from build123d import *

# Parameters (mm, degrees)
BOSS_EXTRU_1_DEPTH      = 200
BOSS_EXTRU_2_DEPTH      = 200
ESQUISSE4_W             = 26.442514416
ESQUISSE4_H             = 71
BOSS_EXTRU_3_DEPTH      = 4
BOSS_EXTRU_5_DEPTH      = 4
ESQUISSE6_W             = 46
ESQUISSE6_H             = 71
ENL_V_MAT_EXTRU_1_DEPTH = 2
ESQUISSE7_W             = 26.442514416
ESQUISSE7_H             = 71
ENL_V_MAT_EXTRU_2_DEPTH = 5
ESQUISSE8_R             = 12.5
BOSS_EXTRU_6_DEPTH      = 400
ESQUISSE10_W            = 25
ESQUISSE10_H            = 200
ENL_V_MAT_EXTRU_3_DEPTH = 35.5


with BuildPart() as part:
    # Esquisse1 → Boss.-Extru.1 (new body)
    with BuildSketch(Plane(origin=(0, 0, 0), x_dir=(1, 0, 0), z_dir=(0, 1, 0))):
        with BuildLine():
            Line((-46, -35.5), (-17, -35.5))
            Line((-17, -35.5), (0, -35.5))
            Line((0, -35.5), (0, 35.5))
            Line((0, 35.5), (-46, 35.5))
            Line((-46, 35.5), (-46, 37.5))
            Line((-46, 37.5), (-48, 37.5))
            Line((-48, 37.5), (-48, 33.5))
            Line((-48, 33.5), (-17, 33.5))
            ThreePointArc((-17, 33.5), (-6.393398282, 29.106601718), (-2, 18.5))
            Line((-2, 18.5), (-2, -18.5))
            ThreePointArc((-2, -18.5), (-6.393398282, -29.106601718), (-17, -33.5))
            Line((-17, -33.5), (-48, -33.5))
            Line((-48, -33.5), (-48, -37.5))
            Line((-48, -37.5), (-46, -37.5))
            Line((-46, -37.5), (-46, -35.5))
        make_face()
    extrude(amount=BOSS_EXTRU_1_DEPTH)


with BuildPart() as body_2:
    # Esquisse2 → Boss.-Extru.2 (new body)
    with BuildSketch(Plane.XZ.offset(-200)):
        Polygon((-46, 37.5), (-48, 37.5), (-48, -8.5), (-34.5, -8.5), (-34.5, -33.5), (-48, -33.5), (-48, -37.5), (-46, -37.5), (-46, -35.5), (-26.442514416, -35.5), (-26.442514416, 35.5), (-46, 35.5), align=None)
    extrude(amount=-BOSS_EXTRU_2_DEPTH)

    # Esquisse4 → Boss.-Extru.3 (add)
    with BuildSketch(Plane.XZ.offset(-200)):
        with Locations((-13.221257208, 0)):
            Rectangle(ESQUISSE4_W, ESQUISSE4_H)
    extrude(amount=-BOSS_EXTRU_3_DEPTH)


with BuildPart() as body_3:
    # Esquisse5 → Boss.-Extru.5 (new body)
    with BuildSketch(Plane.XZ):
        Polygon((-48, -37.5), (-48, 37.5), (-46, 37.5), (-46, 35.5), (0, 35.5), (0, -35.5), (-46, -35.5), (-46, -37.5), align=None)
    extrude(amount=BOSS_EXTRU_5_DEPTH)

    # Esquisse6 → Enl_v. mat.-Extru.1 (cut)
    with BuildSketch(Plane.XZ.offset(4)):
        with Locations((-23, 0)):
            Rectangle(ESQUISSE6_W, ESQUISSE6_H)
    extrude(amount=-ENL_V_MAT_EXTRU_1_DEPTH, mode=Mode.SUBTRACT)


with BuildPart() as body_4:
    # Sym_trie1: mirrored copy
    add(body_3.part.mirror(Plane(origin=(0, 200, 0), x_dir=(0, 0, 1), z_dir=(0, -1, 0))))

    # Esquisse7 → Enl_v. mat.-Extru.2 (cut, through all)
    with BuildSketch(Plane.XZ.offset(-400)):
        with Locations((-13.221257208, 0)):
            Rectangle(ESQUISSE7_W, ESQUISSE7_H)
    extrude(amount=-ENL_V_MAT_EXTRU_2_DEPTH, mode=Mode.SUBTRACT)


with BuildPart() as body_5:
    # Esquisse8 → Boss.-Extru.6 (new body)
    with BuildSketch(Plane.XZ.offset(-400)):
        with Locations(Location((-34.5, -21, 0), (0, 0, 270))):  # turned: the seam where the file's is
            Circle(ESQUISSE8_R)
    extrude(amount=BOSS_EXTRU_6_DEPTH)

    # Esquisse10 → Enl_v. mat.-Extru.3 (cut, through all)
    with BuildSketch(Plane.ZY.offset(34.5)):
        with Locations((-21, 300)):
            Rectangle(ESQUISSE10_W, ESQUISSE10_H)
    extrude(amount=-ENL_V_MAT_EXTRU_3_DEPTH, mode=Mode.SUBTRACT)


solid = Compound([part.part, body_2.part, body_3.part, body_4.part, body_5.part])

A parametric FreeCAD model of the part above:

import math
import FreeCAD as App
import Part
import Sketcher


def add_polygon(sketch, points):
    """Adds a closed chain of lines whose ends are joined by coincident constraints."""
    first, n = sketch.GeometryCount, len(points)
    for a, b in zip(points, points[1:] + points[:1]):
        sketch.addGeometry(Part.LineSegment(App.Vector(*a, 0), App.Vector(*b, 0)), False)
    for i in range(n):
        sketch.addConstraint(Sketcher.Constraint("Coincident", first + i, 2, first + (i + 1) % n, 1))

doc = App.newDocument("Part")
body = doc.addObject("PartDesign::Body", "Body")

# Sketch on XZ plane
sketch1 = body.newObject("Sketcher::SketchObject", "Sketch")
sketch1.AttachmentSupport = (doc.getObject("XZ_Plane"), [""])
sketch1.MapMode = "FlatFace"
sketch1.addGeometry(Part.LineSegment(App.Vector(-46, 35.5, 0), App.Vector(0, 35.5, 0)), False)
sketch1.addGeometry(Part.LineSegment(App.Vector(0, 35.5, 0), App.Vector(0, -35.5, 0)), False)
sketch1.addGeometry(Part.LineSegment(App.Vector(0, -35.5, 0), App.Vector(-46, -35.5, 0)), False)
sketch1.addGeometry(Part.LineSegment(App.Vector(-46, -35.5, 0), App.Vector(-46, -37.5, 0)), False)
sketch1.addGeometry(Part.LineSegment(App.Vector(-46, -37.5, 0), App.Vector(-48, -37.5, 0)), False)
sketch1.addGeometry(Part.LineSegment(App.Vector(-48, -37.5, 0), App.Vector(-48, -33.5, 0)), False)
sketch1.addGeometry(Part.LineSegment(App.Vector(-48, -33.5, 0), App.Vector(-17, -33.5, 0)), False)
sketch1.addGeometry(Part.ArcOfCircle(Part.Circle(App.Vector(-17, -18.5, 0), App.Vector(0, 0, 1), 15), math.radians(-90), math.radians(0)), False)
sketch1.addGeometry(Part.LineSegment(App.Vector(-2, -18.5, 0), App.Vector(-2, 18.5, 0)), False)
sketch1.addGeometry(Part.ArcOfCircle(Part.Circle(App.Vector(-17, 18.5, 0), App.Vector(0, 0, 1), 15), math.radians(0), math.radians(90)), False)
sketch1.addGeometry(Part.LineSegment(App.Vector(-17, 33.5, 0), App.Vector(-48, 33.5, 0)), False)
sketch1.addGeometry(Part.LineSegment(App.Vector(-48, 33.5, 0), App.Vector(-48, 37.5, 0)), False)
sketch1.addGeometry(Part.LineSegment(App.Vector(-48, 37.5, 0), App.Vector(-46, 37.5, 0)), False)
sketch1.addGeometry(Part.LineSegment(App.Vector(-46, 37.5, 0), App.Vector(-46, 35.5, 0)), False)
sketch1.addConstraint(Sketcher.Constraint("Coincident", 0, 2, 1, 1))
sketch1.addConstraint(Sketcher.Constraint("Coincident", 1, 2, 2, 1))
sketch1.addConstraint(Sketcher.Constraint("Coincident", 2, 2, 3, 1))
sketch1.addConstraint(Sketcher.Constraint("Coincident", 3, 2, 4, 1))
sketch1.addConstraint(Sketcher.Constraint("Coincident", 4, 2, 5, 1))
sketch1.addConstraint(Sketcher.Constraint("Coincident", 5, 2, 6, 1))
sketch1.addConstraint(Sketcher.Constraint("Tangent", 6, 2, 7, 1))
sketch1.addConstraint(Sketcher.Constraint("Tangent", 7, 2, 8, 1))
sketch1.addConstraint(Sketcher.Constraint("Tangent", 8, 2, 9, 1))
sketch1.addConstraint(Sketcher.Constraint("Tangent", 9, 2, 10, 1))
sketch1.addConstraint(Sketcher.Constraint("Coincident", 10, 2, 11, 1))
sketch1.addConstraint(Sketcher.Constraint("Coincident", 11, 2, 12, 1))
sketch1.addConstraint(Sketcher.Constraint("Coincident", 12, 2, 13, 1))
sketch1.addConstraint(Sketcher.Constraint("Coincident", 13, 2, 0, 1))
sketch1.addConstraint(Sketcher.Constraint("Horizontal", 0))
sketch1.addConstraint(Sketcher.Constraint("Vertical", 1))
sketch1.addConstraint(Sketcher.Constraint("Horizontal", 2))
sketch1.addConstraint(Sketcher.Constraint("Vertical", 3))
sketch1.addConstraint(Sketcher.Constraint("Horizontal", 4))
sketch1.addConstraint(Sketcher.Constraint("Vertical", 5))
sketch1.addConstraint(Sketcher.Constraint("Horizontal", 6))
sketch1.addConstraint(Sketcher.Constraint("Vertical", 8))
sketch1.addConstraint(Sketcher.Constraint("Horizontal", 10))
sketch1.addConstraint(Sketcher.Constraint("Vertical", 11))
sketch1.addConstraint(Sketcher.Constraint("Horizontal", 12))
sketch1.addConstraint(Sketcher.Constraint("Vertical", 13))
sketch1.addConstraint(Sketcher.Constraint("Equal", 7, 9))
sketch1.addConstraint(Sketcher.Constraint("Symmetric", 0, 2, 1, 2, -1, 1))
sketch1.addConstraint(Sketcher.Constraint("Symmetric", 5, 2, 10, 2, -1))
sketch1.addConstraint(Sketcher.Constraint("Symmetric", 3, 2, 12, 2, -1))
sketch1.addConstraint(Sketcher.Constraint("Equal", 12, 3))
sketch1.addConstraint(Sketcher.Constraint("Radius", 7, 15.0))
sketch1.addConstraint(Sketcher.Constraint("DistanceX", 0, 1, 0, 2, 46.0))
sketch1.addConstraint(Sketcher.Constraint("DistanceX", 4, 2, 4, 1, 2.0))
sketch1.addConstraint(Sketcher.Constraint("DistanceX", 6, 1, 6, 2, 31.0))
sketch1.addConstraint(Sketcher.Constraint("DistanceY", 1, 2, 1, 1, 71.0))
sketch1.addConstraint(Sketcher.Constraint("DistanceY", 5, 1, 5, 2, 4.0))
pad1 = body.newObject("PartDesign::Pad", "Pad")
pad1.Profile = sketch1
pad1.Length = 200
pad1.Reversed = True
body2 = doc.addObject("PartDesign::Body", "Body001")

# Sketch on XZ plane
sketch2 = body2.newObject("Sketcher::SketchObject", "Sketch001")
sketch2.AttachmentSupport = (doc.getObject("XZ_Plane001"), [""])
sketch2.MapMode = "FlatFace"
sketch2.AttachmentOffset = App.Placement(App.Vector(0, 0, -200), App.Rotation())
add_polygon(sketch2, [(-46, 37.5), (-48, 37.5), (-48, -8.5), (-34.5, -8.5), (-34.5, -33.5), (-48, -33.5), (-48, -37.5), (-46, -37.5), (-46, -35.5), (-26.4, -35.5), (-26.4, 35.5), (-46, 35.5)])  # lines 0-11
sketch2.addConstraint(Sketcher.Constraint("Horizontal", 0))
sketch2.addConstraint(Sketcher.Constraint("Vertical", 1))
sketch2.addConstraint(Sketcher.Constraint("Horizontal", 2))
sketch2.addConstraint(Sketcher.Constraint("Vertical", 3))
sketch2.addConstraint(Sketcher.Constraint("Horizontal", 4))
sketch2.addConstraint(Sketcher.Constraint("Vertical", 5))
sketch2.addConstraint(Sketcher.Constraint("Horizontal", 6))
sketch2.addConstraint(Sketcher.Constraint("Vertical", 7))
sketch2.addConstraint(Sketcher.Constraint("Horizontal", 8))
sketch2.addConstraint(Sketcher.Constraint("Vertical", 9))
sketch2.addConstraint(Sketcher.Constraint("Horizontal", 10))
sketch2.addConstraint(Sketcher.Constraint("Vertical", 11))
sketch2.addConstraint(Sketcher.Constraint("Symmetric", 0, 2, 5, 2, -1))
sketch2.addConstraint(Sketcher.Constraint("Symmetric", 7, 2, 10, 2, -1))
sketch2.addConstraint(Sketcher.Constraint("Equal", 6, 7))
sketch2.addConstraint(Sketcher.Constraint("DistanceX", 0, 2, 0, 1, 2.0))
sketch2.addConstraint(Sketcher.Constraint("DistanceY", 1, 2, 1, 1, 46.0))
sketch2.addConstraint(Sketcher.Constraint("DistanceY", 3, 2, 3, 1, 25.0))
sketch2.addConstraint(Sketcher.Constraint("DistanceY", 5, 2, 5, 1, 4.0))
sketch2.addConstraint(Sketcher.Constraint("DistanceX", 2, 1, 2, 2, 13.5))
sketch2.addConstraint(Sketcher.Constraint("DistanceX", 0, 2, -1, 1, 48.0))
sketch2.addConstraint(Sketcher.Constraint("DistanceX", 8, 1, 8, 2, 19.557486))
pad2 = body2.newObject("PartDesign::Pad", "Pad001")
pad2.Profile = sketch2
pad2.Length = 200
pad2.Reversed = True

# Sketch on XZ plane
sketch3 = body2.newObject("Sketcher::SketchObject", "Sketch002")
sketch3.AttachmentSupport = (doc.getObject("XZ_Plane001"), [""])
sketch3.MapMode = "FlatFace"
sketch3.AttachmentOffset = App.Placement(App.Vector(0, 0, -200), App.Rotation())
add_polygon(sketch3, [(-26, 36), (-26, -36), (0, -36), (0, 36)])  # lines 0-3
sketch3.addConstraint(Sketcher.Constraint("Vertical", 0))
sketch3.addConstraint(Sketcher.Constraint("Horizontal", 1))
sketch3.addConstraint(Sketcher.Constraint("Vertical", 2))
sketch3.addConstraint(Sketcher.Constraint("Horizontal", 3))
sketch3.addConstraint(Sketcher.Constraint("Symmetric", 1, 2, 2, 2, -1, 1))
sketch3.addConstraint(Sketcher.Constraint("DistanceY", 0, 2, 0, 1, 71.0))
sketch3.addConstraint(Sketcher.Constraint("DistanceX", 1, 1, 1, 2, 26.442514))
pad3 = body2.newObject("PartDesign::Pad", "Pad002")
pad3.Profile = sketch3
pad3.Length = 4
pad3.Reversed = True
body3 = doc.addObject("PartDesign::Body", "Body002")

# Sketch on XZ plane
sketch4 = body3.newObject("Sketcher::SketchObject", "Sketch003")
sketch4.AttachmentSupport = (doc.getObject("XZ_Plane002"), [""])
sketch4.MapMode = "FlatFace"
add_polygon(sketch4, [(-48, 37.5), (-48, -37.5), (-46, -37.5), (-46, -35.5), (0, -35.5), (0, 35.5), (-46, 35.5), (-46, 37.5)])  # lines 0-7
sketch4.addConstraint(Sketcher.Constraint("Vertical", 0))
sketch4.addConstraint(Sketcher.Constraint("Horizontal", 1))
sketch4.addConstraint(Sketcher.Constraint("Vertical", 2))
sketch4.addConstraint(Sketcher.Constraint("Horizontal", 3))
sketch4.addConstraint(Sketcher.Constraint("Vertical", 4))
sketch4.addConstraint(Sketcher.Constraint("Horizontal", 5))
sketch4.addConstraint(Sketcher.Constraint("Vertical", 6))
sketch4.addConstraint(Sketcher.Constraint("Horizontal", 7))
sketch4.addConstraint(Sketcher.Constraint("Symmetric", 3, 2, 4, 2, -1, 1))
sketch4.addConstraint(Sketcher.Constraint("Symmetric", 1, 2, 6, 2, -1))
sketch4.addConstraint(Sketcher.Constraint("Equal", 7, 2))
sketch4.addConstraint(Sketcher.Constraint("DistanceX", 1, 1, 1, 2, 2.0))
sketch4.addConstraint(Sketcher.Constraint("DistanceX", 3, 1, 3, 2, 46.0))
sketch4.addConstraint(Sketcher.Constraint("DistanceY", 0, 2, 0, 1, 75.0))
pad4 = body3.newObject("PartDesign::Pad", "Pad003")
pad4.Profile = sketch4
pad4.Length = 4

# Sketch on XZ plane
sketch5 = body3.newObject("Sketcher::SketchObject", "Sketch004")
sketch5.AttachmentSupport = (doc.getObject("XZ_Plane002"), [""])
sketch5.MapMode = "FlatFace"
sketch5.AttachmentOffset = App.Placement(App.Vector(0, 0, 4), App.Rotation())
add_polygon(sketch5, [(-46, 36), (-46, -36), (0, -36), (0, 36)])  # lines 0-3
sketch5.addConstraint(Sketcher.Constraint("Vertical", 0))
sketch5.addConstraint(Sketcher.Constraint("Horizontal", 1))
sketch5.addConstraint(Sketcher.Constraint("Vertical", 2))
sketch5.addConstraint(Sketcher.Constraint("Horizontal", 3))
sketch5.addConstraint(Sketcher.Constraint("Symmetric", 1, 2, 2, 2, -1, 1))
sketch5.addConstraint(Sketcher.Constraint("DistanceX", 1, 1, 1, 2, 46.0))
sketch5.addConstraint(Sketcher.Constraint("DistanceY", 0, 2, 0, 1, 71.0))
pocket1 = body3.newObject("PartDesign::Pocket", "Pocket")
pocket1.Profile = sketch5
pocket1.Length = 2
body4 = doc.addObject("PartDesign::Body", "Body003")
doc.recompute()

mirroring = doc.addObject("Part::Mirroring", "Mirroring")
mirroring.Source = body3
mirroring.Base = App.Vector(0, 200, 0)
mirroring.Normal = App.Vector(0, -1, 0)
body4.BaseFeature = mirroring
doc.recompute()

# Sketch on XZ plane
sketch6 = body4.newObject("Sketcher::SketchObject", "Sketch005")
sketch6.AttachmentSupport = (doc.getObject("XZ_Plane003"), [""])
sketch6.MapMode = "FlatFace"
sketch6.AttachmentOffset = App.Placement(App.Vector(0, 0, -400), App.Rotation())
add_polygon(sketch6, [(-26, 36), (-26, -36), (0, -36), (0, 36)])  # lines 0-3
sketch6.addConstraint(Sketcher.Constraint("Vertical", 0))
sketch6.addConstraint(Sketcher.Constraint("Horizontal", 1))
sketch6.addConstraint(Sketcher.Constraint("Vertical", 2))
sketch6.addConstraint(Sketcher.Constraint("Horizontal", 3))
sketch6.addConstraint(Sketcher.Constraint("Symmetric", 1, 2, 2, 2, -1, 1))
sketch6.addConstraint(Sketcher.Constraint("DistanceY", 0, 2, 0, 1, 71.0))
sketch6.addConstraint(Sketcher.Constraint("DistanceX", 1, 1, 1, 2, 26.442514))
pocket2 = body4.newObject("PartDesign::Pocket", "Pocket001")
pocket2.Profile = sketch6
pocket2.Type = "ThroughAll"
body5 = doc.addObject("PartDesign::Body", "Body004")

# Sketch on XZ plane
sketch7 = body5.newObject("Sketcher::SketchObject", "Sketch006")
sketch7.AttachmentSupport = (doc.getObject("XZ_Plane004"), [""])
sketch7.MapMode = "FlatFace"
sketch7.AttachmentOffset = App.Placement(App.Vector(0, 0, -400), App.Rotation())
sketch7.addGeometry(Part.Circle(App.Vector(-34, -21, 0), App.Vector(0, 0, 1), 12), False)
sketch7.addConstraint(Sketcher.Constraint("Diameter", 0, 25.0))
sketch7.addConstraint(Sketcher.Constraint("DistanceY", 0, 3, -1, 1, 21.0))
sketch7.addConstraint(Sketcher.Constraint("DistanceX", 0, 3, -1, 1, 34.5))
pad5 = body5.newObject("PartDesign::Pad", "Pad004")
pad5.Profile = sketch7
pad5.Length = 400

# Sketch on YZ plane
sketch8 = body5.newObject("Sketcher::SketchObject", "Sketch007")
sketch8.AttachmentSupport = (doc.getObject("YZ_Plane004"), [""])
sketch8.MapMode = "FlatFace"
sketch8.AttachmentOffset = App.Placement(App.Vector(0, 0, -34.5), App.Rotation())
add_polygon(sketch8, [(400, -34), (200, -34), (200, -8), (400, -8)])  # lines 0-3
sketch8.addConstraint(Sketcher.Constraint("Horizontal", 0))
sketch8.addConstraint(Sketcher.Constraint("Vertical", 1))
sketch8.addConstraint(Sketcher.Constraint("Horizontal", 2))
sketch8.addConstraint(Sketcher.Constraint("Vertical", 3))
sketch8.addConstraint(Sketcher.Constraint("DistanceX", 0, 2, 0, 1, 200.0))
sketch8.addConstraint(Sketcher.Constraint("DistanceY", 1, 1, 1, 2, 25.0))
sketch8.addConstraint(Sketcher.Constraint("DistanceX", -1, 1, 0, 2, 200.0))
sketch8.addConstraint(Sketcher.Constraint("DistanceY", 0, 2, -1, 1, 33.5))
pocket3 = body5.newObject("PartDesign::Pocket", "Pocket002")
pocket3.Profile = sketch8
pocket3.Type = "ThroughAll"
pocket3.Reversed = True
mirroring.Visibility = False

doc.recompute()
